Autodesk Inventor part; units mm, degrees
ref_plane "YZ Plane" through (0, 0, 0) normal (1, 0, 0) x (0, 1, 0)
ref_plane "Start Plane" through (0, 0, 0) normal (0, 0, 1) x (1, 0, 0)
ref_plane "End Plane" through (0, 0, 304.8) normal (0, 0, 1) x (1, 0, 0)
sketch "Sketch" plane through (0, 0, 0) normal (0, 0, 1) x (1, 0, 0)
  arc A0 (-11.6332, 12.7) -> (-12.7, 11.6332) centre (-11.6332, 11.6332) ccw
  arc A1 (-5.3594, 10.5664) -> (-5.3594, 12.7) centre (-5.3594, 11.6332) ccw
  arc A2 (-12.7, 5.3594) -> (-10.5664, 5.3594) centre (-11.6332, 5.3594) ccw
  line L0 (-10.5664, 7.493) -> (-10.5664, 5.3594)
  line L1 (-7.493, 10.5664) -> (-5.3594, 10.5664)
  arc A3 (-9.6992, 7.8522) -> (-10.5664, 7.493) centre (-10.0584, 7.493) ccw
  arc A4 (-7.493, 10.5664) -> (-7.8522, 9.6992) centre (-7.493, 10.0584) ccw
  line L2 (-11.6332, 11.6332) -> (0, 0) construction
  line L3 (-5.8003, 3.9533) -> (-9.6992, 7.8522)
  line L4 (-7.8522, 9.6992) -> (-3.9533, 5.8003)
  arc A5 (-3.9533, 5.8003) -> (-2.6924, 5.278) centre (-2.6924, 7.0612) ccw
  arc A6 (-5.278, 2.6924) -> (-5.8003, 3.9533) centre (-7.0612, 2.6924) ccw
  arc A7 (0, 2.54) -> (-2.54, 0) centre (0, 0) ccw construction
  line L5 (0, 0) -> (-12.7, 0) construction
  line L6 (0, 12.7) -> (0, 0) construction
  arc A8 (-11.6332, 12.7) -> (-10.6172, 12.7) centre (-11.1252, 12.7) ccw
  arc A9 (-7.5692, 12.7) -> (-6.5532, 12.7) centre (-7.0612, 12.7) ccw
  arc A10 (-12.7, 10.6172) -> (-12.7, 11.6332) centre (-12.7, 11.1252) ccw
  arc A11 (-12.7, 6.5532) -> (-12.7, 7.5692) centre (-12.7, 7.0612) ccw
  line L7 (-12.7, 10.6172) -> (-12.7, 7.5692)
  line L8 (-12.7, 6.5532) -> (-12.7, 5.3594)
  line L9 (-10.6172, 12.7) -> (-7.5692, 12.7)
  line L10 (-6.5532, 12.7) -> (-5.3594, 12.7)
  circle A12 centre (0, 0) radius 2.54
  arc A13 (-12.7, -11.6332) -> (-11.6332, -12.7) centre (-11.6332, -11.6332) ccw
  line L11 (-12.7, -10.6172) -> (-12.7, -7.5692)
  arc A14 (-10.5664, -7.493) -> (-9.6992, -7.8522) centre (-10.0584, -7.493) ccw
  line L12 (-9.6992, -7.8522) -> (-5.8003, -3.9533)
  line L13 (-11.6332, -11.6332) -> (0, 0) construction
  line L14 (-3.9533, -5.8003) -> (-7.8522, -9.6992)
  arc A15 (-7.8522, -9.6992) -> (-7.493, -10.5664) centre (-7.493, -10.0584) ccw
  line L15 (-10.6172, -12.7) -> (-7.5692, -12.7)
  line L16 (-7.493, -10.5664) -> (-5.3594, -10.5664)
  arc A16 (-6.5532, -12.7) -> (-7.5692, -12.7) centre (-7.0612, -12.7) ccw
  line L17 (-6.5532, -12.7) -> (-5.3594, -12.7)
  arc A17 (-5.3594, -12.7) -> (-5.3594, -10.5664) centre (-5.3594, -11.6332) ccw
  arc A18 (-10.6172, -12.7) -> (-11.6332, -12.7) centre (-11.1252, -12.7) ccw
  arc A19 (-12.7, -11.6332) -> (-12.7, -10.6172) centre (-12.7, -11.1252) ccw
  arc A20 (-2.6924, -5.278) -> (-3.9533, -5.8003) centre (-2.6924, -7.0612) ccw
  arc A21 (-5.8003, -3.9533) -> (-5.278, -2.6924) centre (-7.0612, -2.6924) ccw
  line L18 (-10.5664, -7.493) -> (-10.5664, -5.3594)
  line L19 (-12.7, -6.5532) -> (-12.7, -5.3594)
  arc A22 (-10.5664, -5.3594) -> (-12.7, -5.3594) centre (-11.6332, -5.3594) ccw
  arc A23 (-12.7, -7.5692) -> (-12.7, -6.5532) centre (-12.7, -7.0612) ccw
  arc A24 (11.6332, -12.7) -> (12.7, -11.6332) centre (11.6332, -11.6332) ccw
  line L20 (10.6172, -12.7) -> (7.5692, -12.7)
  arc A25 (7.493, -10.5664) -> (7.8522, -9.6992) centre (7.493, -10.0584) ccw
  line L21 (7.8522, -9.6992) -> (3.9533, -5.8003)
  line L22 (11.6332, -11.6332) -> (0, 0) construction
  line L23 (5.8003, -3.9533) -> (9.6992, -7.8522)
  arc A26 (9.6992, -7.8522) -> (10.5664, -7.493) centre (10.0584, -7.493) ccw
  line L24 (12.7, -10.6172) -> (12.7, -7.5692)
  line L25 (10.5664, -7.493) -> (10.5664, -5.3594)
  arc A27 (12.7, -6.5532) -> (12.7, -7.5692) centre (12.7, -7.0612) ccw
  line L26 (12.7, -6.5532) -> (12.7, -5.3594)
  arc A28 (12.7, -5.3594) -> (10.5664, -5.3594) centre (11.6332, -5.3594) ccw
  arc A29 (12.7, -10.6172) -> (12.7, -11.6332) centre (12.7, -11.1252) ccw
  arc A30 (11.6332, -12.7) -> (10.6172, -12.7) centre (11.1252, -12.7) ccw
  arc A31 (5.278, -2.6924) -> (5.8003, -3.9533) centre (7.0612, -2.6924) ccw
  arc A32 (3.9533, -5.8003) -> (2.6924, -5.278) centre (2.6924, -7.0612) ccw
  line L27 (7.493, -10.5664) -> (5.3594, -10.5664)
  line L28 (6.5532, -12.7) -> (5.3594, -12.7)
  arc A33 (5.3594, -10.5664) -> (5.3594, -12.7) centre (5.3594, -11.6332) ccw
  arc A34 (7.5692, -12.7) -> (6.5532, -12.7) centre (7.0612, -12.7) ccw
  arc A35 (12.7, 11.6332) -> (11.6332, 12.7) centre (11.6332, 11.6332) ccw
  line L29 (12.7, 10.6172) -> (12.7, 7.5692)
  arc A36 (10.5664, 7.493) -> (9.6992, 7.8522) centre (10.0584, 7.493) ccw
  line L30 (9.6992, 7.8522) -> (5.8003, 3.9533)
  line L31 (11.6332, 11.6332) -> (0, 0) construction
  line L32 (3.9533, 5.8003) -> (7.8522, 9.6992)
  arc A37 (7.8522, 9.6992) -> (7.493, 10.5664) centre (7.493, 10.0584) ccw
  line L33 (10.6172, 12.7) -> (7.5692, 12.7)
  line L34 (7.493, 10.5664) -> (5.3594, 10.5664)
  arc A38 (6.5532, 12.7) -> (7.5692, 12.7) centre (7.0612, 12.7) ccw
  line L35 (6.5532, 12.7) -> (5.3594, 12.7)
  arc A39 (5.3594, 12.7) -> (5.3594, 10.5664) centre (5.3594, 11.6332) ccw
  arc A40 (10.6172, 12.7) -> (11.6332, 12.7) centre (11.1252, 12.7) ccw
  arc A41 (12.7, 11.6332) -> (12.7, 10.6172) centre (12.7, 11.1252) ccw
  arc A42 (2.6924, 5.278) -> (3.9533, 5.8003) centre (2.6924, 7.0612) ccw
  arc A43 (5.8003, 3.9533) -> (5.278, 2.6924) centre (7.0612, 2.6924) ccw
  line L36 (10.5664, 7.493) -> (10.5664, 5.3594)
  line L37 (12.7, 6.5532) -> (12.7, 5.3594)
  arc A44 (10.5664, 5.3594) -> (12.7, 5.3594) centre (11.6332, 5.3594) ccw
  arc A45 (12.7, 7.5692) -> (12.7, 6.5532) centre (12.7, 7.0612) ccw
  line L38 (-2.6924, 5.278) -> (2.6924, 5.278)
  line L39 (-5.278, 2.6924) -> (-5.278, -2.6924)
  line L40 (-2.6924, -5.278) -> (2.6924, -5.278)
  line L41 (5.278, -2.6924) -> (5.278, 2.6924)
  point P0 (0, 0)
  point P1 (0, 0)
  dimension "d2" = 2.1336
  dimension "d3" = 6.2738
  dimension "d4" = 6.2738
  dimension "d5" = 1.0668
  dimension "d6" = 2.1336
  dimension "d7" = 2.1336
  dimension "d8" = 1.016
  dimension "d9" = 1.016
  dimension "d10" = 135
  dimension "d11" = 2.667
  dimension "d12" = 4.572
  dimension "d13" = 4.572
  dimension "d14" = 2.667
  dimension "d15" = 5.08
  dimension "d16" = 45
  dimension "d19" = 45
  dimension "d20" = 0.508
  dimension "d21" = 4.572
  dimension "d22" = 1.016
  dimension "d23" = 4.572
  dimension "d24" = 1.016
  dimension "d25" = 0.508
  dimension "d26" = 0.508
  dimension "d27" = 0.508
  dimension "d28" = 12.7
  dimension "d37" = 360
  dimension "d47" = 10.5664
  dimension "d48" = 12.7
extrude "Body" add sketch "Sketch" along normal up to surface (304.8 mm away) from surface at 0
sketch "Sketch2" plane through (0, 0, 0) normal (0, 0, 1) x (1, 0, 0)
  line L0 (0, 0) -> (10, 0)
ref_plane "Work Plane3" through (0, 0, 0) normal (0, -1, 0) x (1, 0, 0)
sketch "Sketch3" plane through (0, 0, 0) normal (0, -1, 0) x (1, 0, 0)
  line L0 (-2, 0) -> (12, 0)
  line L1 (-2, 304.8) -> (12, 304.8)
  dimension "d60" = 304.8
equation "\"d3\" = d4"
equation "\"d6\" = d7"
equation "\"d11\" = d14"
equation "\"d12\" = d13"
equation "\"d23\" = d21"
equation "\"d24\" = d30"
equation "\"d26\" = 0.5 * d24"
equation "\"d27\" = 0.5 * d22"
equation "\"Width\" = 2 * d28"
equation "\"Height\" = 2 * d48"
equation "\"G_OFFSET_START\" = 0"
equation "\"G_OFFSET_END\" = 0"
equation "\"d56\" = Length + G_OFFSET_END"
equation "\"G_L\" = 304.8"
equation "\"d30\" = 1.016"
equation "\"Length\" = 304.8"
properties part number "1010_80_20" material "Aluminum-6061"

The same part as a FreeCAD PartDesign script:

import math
import FreeCAD as App
import Part
import Sketcher
Q = App.Units.Quantity

doc = App.newDocument("Part")
body = doc.addObject("PartDesign::Body", "Body")

# Sketch on XY plane
sketch1 = doc.addObject("Sketcher::SketchObject", "Sketch")
body.addObject(sketch1)
sketch1.AttachmentSupport = (doc.XY_Plane, [""])
sketch1.MapMode = "FlatFace"
sketch1.addGeometry([
    Part.ArcOfCircle(Part.Circle(App.Vector(-11.1, 12.7, 0), App.Vector(0, 0, 1), 0.5), math.radians(180), math.radians(360)),  # 0
    Part.ArcOfCircle(Part.Circle(App.Vector(-11.6, 11.6, 0), App.Vector(0, 0, 1), 1.1), math.radians(90), math.radians(180)),  # 1
    Part.ArcOfCircle(Part.Circle(App.Vector(-12.7, 11.1, 0), App.Vector(0, 0, 1), 0.5), math.radians(-90), math.radians(90)),  # 2
    Part.LineSegment(App.Vector(-12.7, 10.6, 0), App.Vector(-12.7, 7.6, 0)),  # 3
    Part.ArcOfCircle(Part.Circle(App.Vector(-12.7, 7.1, 0), App.Vector(0, 0, 1), 0.5), math.radians(-90), math.radians(90)),  # 4
    Part.LineSegment(App.Vector(-12.7, 6.6, 0), App.Vector(-12.7, 5.4, 0)),  # 5
    Part.ArcOfCircle(Part.Circle(App.Vector(-11.6, 5.4, 0), App.Vector(0, 0, 1), 1.1), math.radians(180), math.radians(360)),  # 6
    Part.LineSegment(App.Vector(-10.6, 5.4, 0), App.Vector(-10.6, 7.5, 0)),  # 7
    Part.ArcOfCircle(Part.Circle(App.Vector(-10.1, 7.5, 0), App.Vector(0, 0, 1), 0.5), math.radians(45), math.radians(180)),  # 8
    Part.LineSegment(App.Vector(-9.7, 7.9, 0), App.Vector(-5.8, 4, 0)),  # 9
    Part.ArcOfCircle(Part.Circle(App.Vector(-7.1, 2.7, 0), App.Vector(0, 0, 1), 1.8), math.radians(0), math.radians(45)),  # 10
    Part.LineSegment(App.Vector(-5.3, 2.7, 0), App.Vector(-5.3, -2.7, 0)),  # 11
    Part.ArcOfCircle(Part.Circle(App.Vector(-7.1, -2.7, 0), App.Vector(0, 0, 1), 1.8), math.radians(-45), math.radians(0)),  # 12
    Part.LineSegment(App.Vector(-5.8, -4, 0), App.Vector(-9.7, -7.9, 0)),  # 13
    Part.ArcOfCircle(Part.Circle(App.Vector(-10.1, -7.5, 0), App.Vector(0, 0, 1), 0.5), math.radians(180), math.radians(315)),  # 14
    Part.LineSegment(App.Vector(-10.6, -7.5, 0), App.Vector(-10.6, -5.4, 0)),  # 15
    Part.ArcOfCircle(Part.Circle(App.Vector(-11.6, -5.4, 0), App.Vector(0, 0, 1), 1.1), math.radians(0), math.radians(180)),  # 16
    Part.LineSegment(App.Vector(-12.7, -5.4, 0), App.Vector(-12.7, -6.6, 0)),  # 17
    Part.ArcOfCircle(Part.Circle(App.Vector(-12.7, -7.1, 0), App.Vector(0, 0, 1), 0.5), math.radians(-90), math.radians(90)),  # 18
    Part.LineSegment(App.Vector(-12.7, -7.6, 0), App.Vector(-12.7, -10.6, 0)),  # 19
    Part.ArcOfCircle(Part.Circle(App.Vector(-12.7, -11.1, 0), App.Vector(0, 0, 1), 0.5), math.radians(-90), math.radians(90)),  # 20
    Part.ArcOfCircle(Part.Circle(App.Vector(-11.6, -11.6, 0), App.Vector(0, 0, 1), 1.1), math.radians(180), math.radians(270)),  # 21
    Part.ArcOfCircle(Part.Circle(App.Vector(-11.1, -12.7, 0), App.Vector(0, 0, 1), 0.5), math.radians(0), math.radians(180)),  # 22
    Part.LineSegment(App.Vector(-10.6, -12.7, 0), App.Vector(-7.6, -12.7, 0)),  # 23
    Part.ArcOfCircle(Part.Circle(App.Vector(-7.1, -12.7, 0), App.Vector(0, 0, 1), 0.5), math.radians(0), math.radians(180)),  # 24
    Part.LineSegment(App.Vector(-6.6, -12.7, 0), App.Vector(-5.4, -12.7, 0)),  # 25
    Part.ArcOfCircle(Part.Circle(App.Vector(-5.4, -11.6, 0), App.Vector(0, 0, 1), 1.1), math.radians(-90), math.radians(90)),  # 26
    Part.LineSegment(App.Vector(-5.4, -10.6, 0), App.Vector(-7.5, -10.6, 0)),  # 27
    Part.ArcOfCircle(Part.Circle(App.Vector(-7.5, -10.1, 0), App.Vector(0, 0, 1), 0.5), math.radians(135), math.radians(270)),  # 28
    Part.LineSegment(App.Vector(-7.9, -9.7, 0), App.Vector(-4, -5.8, 0)),  # 29
    Part.ArcOfCircle(Part.Circle(App.Vector(-2.7, -7.1, 0), App.Vector(0, 0, 1), 1.8), math.radians(90), math.radians(135)),  # 30
    Part.LineSegment(App.Vector(-2.7, -5.3, 0), App.Vector(2.7, -5.3, 0)),  # 31
    Part.ArcOfCircle(Part.Circle(App.Vector(2.7, -7.1, 0), App.Vector(0, 0, 1), 1.8), math.radians(45), math.radians(90)),  # 32
    Part.LineSegment(App.Vector(4, -5.8, 0), App.Vector(7.9, -9.7, 0)),  # 33
    Part.ArcOfCircle(Part.Circle(App.Vector(7.5, -10.1, 0), App.Vector(0, 0, 1), 0.5), math.radians(-90), math.radians(45)),  # 34
    Part.LineSegment(App.Vector(7.5, -10.6, 0), App.Vector(5.4, -10.6, 0)),  # 35
    Part.ArcOfCircle(Part.Circle(App.Vector(5.4, -11.6, 0), App.Vector(0, 0, 1), 1.1), math.radians(90), math.radians(270)),  # 36
    Part.LineSegment(App.Vector(5.4, -12.7, 0), App.Vector(6.6, -12.7, 0)),  # 37
    Part.ArcOfCircle(Part.Circle(App.Vector(7.1, -12.7, 0), App.Vector(0, 0, 1), 0.5), math.radians(0), math.radians(180)),  # 38
    Part.LineSegment(App.Vector(7.6, -12.7, 0), App.Vector(10.6, -12.7, 0)),  # 39
    Part.ArcOfCircle(Part.Circle(App.Vector(11.1, -12.7, 0), App.Vector(0, 0, 1), 0.5), math.radians(0), math.radians(180)),  # 40
    Part.ArcOfCircle(Part.Circle(App.Vector(11.6, -11.6, 0), App.Vector(0, 0, 1), 1.1), math.radians(-90), math.radians(0)),  # 41
    Part.ArcOfCircle(Part.Circle(App.Vector(12.7, -11.1, 0), App.Vector(0, 0, 1), 0.5), math.radians(90), math.radians(270)),  # 42
    Part.LineSegment(App.Vector(12.7, -10.6, 0), App.Vector(12.7, -7.6, 0)),  # 43
    Part.ArcOfCircle(Part.Circle(App.Vector(12.7, -7.1, 0), App.Vector(0, 0, 1), 0.5), math.radians(90), math.radians(270)),  # 44
    Part.LineSegment(App.Vector(12.7, -6.6, 0), App.Vector(12.7, -5.4, 0)),  # 45
    Part.ArcOfCircle(Part.Circle(App.Vector(11.6, -5.4, 0), App.Vector(0, 0, 1), 1.1), math.radians(0), math.radians(180)),  # 46
    Part.LineSegment(App.Vector(10.6, -5.4, 0), App.Vector(10.6, -7.5, 0)),  # 47
    Part.ArcOfCircle(Part.Circle(App.Vector(10.1, -7.5, 0), App.Vector(0, 0, 1), 0.5), math.radians(-135), math.radians(0)),  # 48
    Part.LineSegment(App.Vector(9.7, -7.9, 0), App.Vector(5.8, -4, 0)),  # 49
    Part.ArcOfCircle(Part.Circle(App.Vector(7.1, -2.7, 0), App.Vector(0, 0, 1), 1.8), math.radians(180), math.radians(225)),  # 50
    Part.LineSegment(App.Vector(5.3, -2.7, 0), App.Vector(5.3, 2.7, 0)),  # 51
    Part.ArcOfCircle(Part.Circle(App.Vector(7.1, 2.7, 0), App.Vector(0, 0, 1), 1.8), math.radians(135), math.radians(180)),  # 52
    Part.LineSegment(App.Vector(5.8, 4, 0), App.Vector(9.7, 7.9, 0)),  # 53
    Part.ArcOfCircle(Part.Circle(App.Vector(10.1, 7.5, 0), App.Vector(0, 0, 1), 0.5), math.radians(0), math.radians(135)),  # 54
    Part.LineSegment(App.Vector(10.6, 7.5, 0), App.Vector(10.6, 5.4, 0)),  # 55
    Part.ArcOfCircle(Part.Circle(App.Vector(11.6, 5.4, 0), App.Vector(0, 0, 1), 1.1), math.radians(180), math.radians(360)),  # 56
    Part.LineSegment(App.Vector(12.7, 5.4, 0), App.Vector(12.7, 6.6, 0)),  # 57
    Part.ArcOfCircle(Part.Circle(App.Vector(12.7, 7.1, 0), App.Vector(0, 0, 1), 0.5), math.radians(90), math.radians(270)),  # 58
    Part.LineSegment(App.Vector(12.7, 7.6, 0), App.Vector(12.7, 10.6, 0)),  # 59
    Part.ArcOfCircle(Part.Circle(App.Vector(12.7, 11.1, 0), App.Vector(0, 0, 1), 0.5), math.radians(90), math.radians(270)),  # 60
    Part.ArcOfCircle(Part.Circle(App.Vector(11.6, 11.6, 0), App.Vector(0, 0, 1), 1.1), math.radians(0), math.radians(90)),  # 61
    Part.ArcOfCircle(Part.Circle(App.Vector(11.1, 12.7, 0), App.Vector(0, 0, 1), 0.5), math.radians(180), math.radians(360)),  # 62
    Part.LineSegment(App.Vector(10.6, 12.7, 0), App.Vector(7.6, 12.7, 0)),  # 63
    Part.ArcOfCircle(Part.Circle(App.Vector(7.1, 12.7, 0), App.Vector(0, 0, 1), 0.5), math.radians(180), math.radians(360)),  # 64
    Part.LineSegment(App.Vector(6.6, 12.7, 0), App.Vector(5.4, 12.7, 0)),  # 65
    Part.ArcOfCircle(Part.Circle(App.Vector(5.4, 11.6, 0), App.Vector(0, 0, 1), 1.1), math.radians(90), math.radians(270)),  # 66
    Part.LineSegment(App.Vector(5.4, 10.6, 0), App.Vector(7.5, 10.6, 0)),  # 67
    Part.ArcOfCircle(Part.Circle(App.Vector(7.5, 10.1, 0), App.Vector(0, 0, 1), 0.5), math.radians(-45), math.radians(90)),  # 68
    Part.LineSegment(App.Vector(7.9, 9.7, 0), App.Vector(4, 5.8, 0)),  # 69
    Part.ArcOfCircle(Part.Circle(App.Vector(2.7, 7.1, 0), App.Vector(0, 0, 1), 1.8), math.radians(-90), math.radians(-45)),  # 70
    Part.LineSegment(App.Vector(2.7, 5.3, 0), App.Vector(-2.7, 5.3, 0)),  # 71
    Part.ArcOfCircle(Part.Circle(App.Vector(-2.7, 7.1, 0), App.Vector(0, 0, 1), 1.8), math.radians(-135), math.radians(-90)),  # 72
    Part.LineSegment(App.Vector(-4, 5.8, 0), App.Vector(-7.9, 9.7, 0)),  # 73
    Part.ArcOfCircle(Part.Circle(App.Vector(-7.5, 10.1, 0), App.Vector(0, 0, 1), 0.5), math.radians(90), math.radians(225)),  # 74
    Part.LineSegment(App.Vector(-7.5, 10.6, 0), App.Vector(-5.4, 10.6, 0)),  # 75
    Part.ArcOfCircle(Part.Circle(App.Vector(-5.4, 11.6, 0), App.Vector(0, 0, 1), 1.1), math.radians(-90), math.radians(90)),  # 76
    Part.LineSegment(App.Vector(-5.4, 12.7, 0), App.Vector(-6.6, 12.7, 0)),  # 77
    Part.ArcOfCircle(Part.Circle(App.Vector(-7.1, 12.7, 0), App.Vector(0, 0, 1), 0.5), math.radians(180), math.radians(360)),  # 78
    Part.LineSegment(App.Vector(-7.6, 12.7, 0), App.Vector(-10.6, 12.7, 0)),  # 79
    Part.Circle(App.Vector(0, 0, 0), App.Vector(0, 0, 1), 2.5),  # 80
], False)
sketch1.addConstraint([
    Sketcher.Constraint("Coincident", 0, 1, 1, 1),
    Sketcher.Constraint("Coincident", 1, 2, 2, 2),
    Sketcher.Constraint("Coincident", 2, 1, 3, 1),
    Sketcher.Constraint("Coincident", 3, 2, 4, 2),
    Sketcher.Constraint("Coincident", 4, 1, 5, 1),
    Sketcher.Constraint("Tangent", 5, 2, 6, 1),
    Sketcher.Constraint("Tangent", 6, 2, 7, 1),
    Sketcher.Constraint("Tangent", 7, 2, 8, 2),
    Sketcher.Constraint("Tangent", 8, 1, 9, 1),
    Sketcher.Constraint("Tangent", 9, 2, 10, 2),
    Sketcher.Constraint("Tangent", 10, 1, 11, 1),
    Sketcher.Constraint("Tangent", 11, 2, 12, 2),
    Sketcher.Constraint("Tangent", 12, 1, 13, 1),
    Sketcher.Constraint("Tangent", 13, 2, 14, 2),
    Sketcher.Constraint("Tangent", 14, 1, 15, 1),
    Sketcher.Constraint("Tangent", 15, 2, 16, 1),
    Sketcher.Constraint("Tangent", 16, 2, 17, 1),
    Sketcher.Constraint("Coincident", 17, 2, 18, 2),
    Sketcher.Constraint("Coincident", 18, 1, 19, 1),
    Sketcher.Constraint("Coincident", 19, 2, 20, 2),
    Sketcher.Constraint("Coincident", 20, 1, 21, 1),
    Sketcher.Constraint("Coincident", 21, 2, 22, 2),
    Sketcher.Constraint("Coincident", 22, 1, 23, 1),
    Sketcher.Constraint("Coincident", 23, 2, 24, 2),
    Sketcher.Constraint("Coincident", 24, 1, 25, 1),
    Sketcher.Constraint("Tangent", 25, 2, 26, 1),
    Sketcher.Constraint("Tangent", 26, 2, 27, 1),
    Sketcher.Constraint("Tangent", 27, 2, 28, 2),
    Sketcher.Constraint("Tangent", 28, 1, 29, 1),
    Sketcher.Constraint("Tangent", 29, 2, 30, 2),
    Sketcher.Constraint("Tangent", 30, 1, 31, 1),
    Sketcher.Constraint("Tangent", 31, 2, 32, 2),
    Sketcher.Constraint("Tangent", 32, 1, 33, 1),
    Sketcher.Constraint("Tangent", 33, 2, 34, 2),
    Sketcher.Constraint("Tangent", 34, 1, 35, 1),
    Sketcher.Constraint("Tangent", 35, 2, 36, 1),
    Sketcher.Constraint("Tangent", 36, 2, 37, 1),
    Sketcher.Constraint("Coincident", 37, 2, 38, 2),
    Sketcher.Constraint("Coincident", 38, 1, 39, 1),
    Sketcher.Constraint("Coincident", 39, 2, 40, 2),
    Sketcher.Constraint("Coincident", 40, 1, 41, 1),
    Sketcher.Constraint("Coincident", 41, 2, 42, 2),
    Sketcher.Constraint("Coincident", 42, 1, 43, 1),
    Sketcher.Constraint("Coincident", 43, 2, 44, 2),
    Sketcher.Constraint("Coincident", 44, 1, 45, 1),
    Sketcher.Constraint("Tangent", 45, 2, 46, 1),
    Sketcher.Constraint("Tangent", 46, 2, 47, 1),
    Sketcher.Constraint("Tangent", 47, 2, 48, 2),
    Sketcher.Constraint("Tangent", 48, 1, 49, 1),
    Sketcher.Constraint("Tangent", 49, 2, 50, 2),
    Sketcher.Constraint("Tangent", 50, 1, 51, 1),
    Sketcher.Constraint("Tangent", 51, 2, 52, 2),
    Sketcher.Constraint("Tangent", 52, 1, 53, 1),
    Sketcher.Constraint("Tangent", 53, 2, 54, 2),
    Sketcher.Constraint("Tangent", 54, 1, 55, 1),
    Sketcher.Constraint("Tangent", 55, 2, 56, 1),
    Sketcher.Constraint("Tangent", 56, 2, 57, 1),
    Sketcher.Constraint("Coincident", 57, 2, 58, 2),
    Sketcher.Constraint("Coincident", 58, 1, 59, 1),
    Sketcher.Constraint("Coincident", 59, 2, 60, 2),
    Sketcher.Constraint("Coincident", 60, 1, 61, 1),
    Sketcher.Constraint("Coincident", 61, 2, 62, 2),
    Sketcher.Constraint("Coincident", 62, 1, 63, 1),
    Sketcher.Constraint("Coincident", 63, 2, 64, 2),
    Sketcher.Constraint("Coincident", 64, 1, 65, 1),
    Sketcher.Constraint("Tangent", 65, 2, 66, 1),
    Sketcher.Constraint("Tangent", 66, 2, 67, 1),
    Sketcher.Constraint("Tangent", 67, 2, 68, 2),
    Sketcher.Constraint("Tangent", 68, 1, 69, 1),
    Sketcher.Constraint("Tangent", 69, 2, 70, 2),
    Sketcher.Constraint("Tangent", 70, 1, 71, 1),
    Sketcher.Constraint("Tangent", 71, 2, 72, 2),
    Sketcher.Constraint("Tangent", 72, 1, 73, 1),
    Sketcher.Constraint("Tangent", 73, 2, 74, 2),
    Sketcher.Constraint("Tangent", 74, 1, 75, 1),
    Sketcher.Constraint("Tangent", 75, 2, 76, 1),
    Sketcher.Constraint("Tangent", 76, 2, 77, 1),
    Sketcher.Constraint("Coincident", 77, 2, 78, 2),
    Sketcher.Constraint("Coincident", 78, 1, 79, 1),
    Sketcher.Constraint("Coincident", 79, 2, 0, 2),
    Sketcher.Constraint("Vertical", 3),
    Sketcher.Constraint("Vertical", 5),
    Sketcher.Constraint("Vertical", 7),
    Sketcher.Constraint("Vertical", 11),
    Sketcher.Constraint("Vertical", 15),
    Sketcher.Constraint("Vertical", 17),
    Sketcher.Constraint("Vertical", 19),
    Sketcher.Constraint("Horizontal", 23),
    Sketcher.Constraint("Horizontal", 25),
    Sketcher.Constraint("Horizontal", 27),
    Sketcher.Constraint("Horizontal", 31),
    Sketcher.Constraint("Horizontal", 35),
    Sketcher.Constraint("Horizontal", 37),
    Sketcher.Constraint("Horizontal", 39),
    Sketcher.Constraint("Vertical", 43),
    Sketcher.Constraint("Vertical", 45),
    Sketcher.Constraint("Vertical", 47),
    Sketcher.Constraint("Vertical", 51),
    Sketcher.Constraint("Vertical", 55),
    Sketcher.Constraint("Vertical", 57),
    Sketcher.Constraint("Vertical", 59),
    Sketcher.Constraint("Horizontal", 63),
    Sketcher.Constraint("Horizontal", 65),
    Sketcher.Constraint("Horizontal", 67),
    Sketcher.Constraint("Horizontal", 71),
    Sketcher.Constraint("Horizontal", 75),
    Sketcher.Constraint("Horizontal", 77),
    Sketcher.Constraint("Horizontal", 79),
    Sketcher.Constraint("Coincident", 80, 3, -1, 1),
    Sketcher.Constraint("Equal", 0, 2),
    Sketcher.Constraint("Equal", 2, 4),
    Sketcher.Constraint("Equal", 1, 6),
    Sketcher.Constraint("Equal", 4, 8),
    Sketcher.Constraint("Equal", 10, 12),
    Sketcher.Constraint("Equal", 8, 14),
    Sketcher.Constraint("Equal", 6, 16),
    Sketcher.Constraint("Equal", 14, 18),
    Sketcher.Constraint("Equal", 18, 20),
    Sketcher.Constraint("Equal", 16, 21),
    Sketcher.Constraint("Equal", 20, 22),
    Sketcher.Constraint("Equal", 22, 24),
    Sketcher.Constraint("Equal", 21, 26),
    Sketcher.Constraint("Equal", 24, 28),
    Sketcher.Constraint("Equal", 12, 30),
    Sketcher.Constraint("Equal", 30, 32),
    Sketcher.Constraint("Equal", 28, 34),
    Sketcher.Constraint("Equal", 26, 36),
    Sketcher.Constraint("Equal", 34, 38),
    Sketcher.Constraint("Equal", 38, 40),
    Sketcher.Constraint("Equal", 36, 41),
    Sketcher.Constraint("Equal", 40, 42),
    Sketcher.Constraint("Equal", 42, 44),
    Sketcher.Constraint("Equal", 41, 46),
    Sketcher.Constraint("Equal", 44, 48),
    Sketcher.Constraint("Equal", 32, 50),
    Sketcher.Constraint("Equal", 50, 52),
    Sketcher.Constraint("Equal", 48, 54),
    Sketcher.Constraint("Equal", 46, 56),
    Sketcher.Constraint("Equal", 54, 58),
    Sketcher.Constraint("Equal", 58, 60),
    Sketcher.Constraint("Equal", 56, 61),
    Sketcher.Constraint("Equal", 60, 62),
    Sketcher.Constraint("Equal", 62, 64),
    Sketcher.Constraint("Equal", 61, 66),
    Sketcher.Constraint("Equal", 64, 68),
    Sketcher.Constraint("Equal", 52, 70),
    Sketcher.Constraint("Equal", 70, 72),
    Sketcher.Constraint("Equal", 68, 74),
    Sketcher.Constraint("Equal", 66, 76),
    Sketcher.Constraint("Equal", 74, 78),
    Sketcher.Constraint("Symmetric", 0, 3, 40, 3, -1, 1),
    Sketcher.Constraint("Symmetric", 1, 3, 41, 3, -1, 1),
    Sketcher.Constraint("Symmetric", 2, 3, 42, 3, -1, 1),
    Sketcher.Constraint("Symmetric", 4, 3, 44, 3, -1, 1),
    Sketcher.Constraint("Symmetric", 6, 3, 46, 3, -1, 1),
    Sketcher.Constraint("Symmetric", 10, 3, 50, 3, -1, 1),
    Sketcher.Constraint("Symmetric", 14, 3, 54, 3, -1, 1),
    Sketcher.Constraint("Symmetric", 18, 3, 58, 3, -1, 1),
    Sketcher.Constraint("Symmetric", 20, 3, 60, 3, -1, 1),
    Sketcher.Constraint("Symmetric", 21, 3, 61, 3, -1, 1),
    Sketcher.Constraint("Symmetric", 22, 3, 62, 3, -1, 1),
    Sketcher.Constraint("Symmetric", 24, 3, 64, 3, -1, 1),
    Sketcher.Constraint("Symmetric", 26, 3, 66, 3, -1, 1),
    Sketcher.Constraint("Symmetric", 30, 3, 70, 3, -1, 1),
    Sketcher.Constraint("Symmetric", 34, 3, 74, 3, -1, 1),
    Sketcher.Constraint("Symmetric", 38, 3, 78, 3, -1, 1),
    Sketcher.Constraint("Symmetric", 28, 3, 34, 3, -2),
    Sketcher.Constraint("Symmetric", 24, 3, 38, 3, -2),
    Sketcher.Constraint("Symmetric", 22, 3, 40, 3, -2),
    Sketcher.Constraint("Symmetric", 21, 3, 41, 3, -2),
    Sketcher.Constraint("Symmetric", 20, 3, 42, 3, -2),
    Sketcher.Constraint("Symmetric", 18, 3, 44, 3, -2),
    Sketcher.Constraint("Symmetric", 16, 3, 46, 3, -2),
    Sketcher.Constraint("Symmetric", 13, 2, 48, 1, -2),
    Sketcher.Constraint("Symmetric", 9, 2, 52, 1, -2),
    Sketcher.Constraint("Symmetric", 69, 2, 72, 1, -2),
    Sketcher.Constraint("Perpendicular", 9, 13),
    Sketcher.Constraint("Parallel", 13, 29),
    Sketcher.Constraint("Perpendicular", 29, 33),
    Sketcher.Constraint("Horizontal", 22, 3, 24, 3),
    Sketcher.Constraint("Horizontal", 21, 3, 26, 3),
    Sketcher.Constraint("Horizontal", 18, 3, 30, 3),
    Sketcher.Constraint("Horizontal", 6, 3, 56, 3),
    Sketcher.Constraint("Horizontal", 78, 3, 0, 1),
    Sketcher.Constraint("Horizontal", 76, 3, 1, 2),
    Sketcher.Constraint("Horizontal", 21, 2, 22, 1),
    Sketcher.Constraint("Horizontal", 37, 2, 38, 1),
    Sketcher.Constraint("Horizontal", 61, 2, 62, 1),
    Sketcher.Constraint("Horizontal", 77, 2, 78, 1),
    Sketcher.Constraint("Vertical", 2, 3, 4, 3),
    Sketcher.Constraint("Vertical", 1, 3, 6, 3),
    Sketcher.Constraint("Vertical", 12, 3, 24, 3),
    Sketcher.Constraint("Vertical", 36, 3, 66, 3),
    Sketcher.Constraint("Vertical", 26, 3, 76, 3),
    Sketcher.Constraint("Vertical", 21, 3, 0, 1),
    Sketcher.Constraint("Vertical", 20, 3, 1, 2),
    Sketcher.Constraint("Vertical", 1, 2, 2, 1),
    Sketcher.Constraint("Vertical", 17, 2, 18, 1),
    Sketcher.Constraint("Vertical", 41, 2, 42, 1),
    Sketcher.Constraint("Vertical", 57, 2, 58, 1),
    Sketcher.Constraint("Equal", 79, 3),
    Sketcher.Constraint("Equal", 77, 5),
    Sketcher.Constraint("Equal", 75, 7),
    Sketcher.Constraint("Equal", 71, 11),
    Sketcher.Constraint("Diameter", 80, Q("0.2 in")),
    Sketcher.Constraint("Radius", 0, Q("0.02 in")),
    Sketcher.Constraint("Radius", 1, Q("0.042 in")),
    Sketcher.Constraint("DistanceY", -1, 1, 0, 3, Q("0.5 in")),
    Sketcher.Constraint("DistanceX", 27, 2, 27, 1, Q("0.084 in")),
    Sketcher.Constraint("DistanceX", 23, 1, 23, 2, Q("0.12 in")),
    Sketcher.Constraint("Radius", 10, Q("0.0702 in")),
    Sketcher.Constraint("DistanceX", 25, 1, 25, 2, Q("0.047 in")),
])
pad1 = doc.addObject("PartDesign::Pad", "Pad")
body.addObject(pad1)
pad1.Profile = sketch1
pad1.Length = Q("12 in")

doc.recompute()
